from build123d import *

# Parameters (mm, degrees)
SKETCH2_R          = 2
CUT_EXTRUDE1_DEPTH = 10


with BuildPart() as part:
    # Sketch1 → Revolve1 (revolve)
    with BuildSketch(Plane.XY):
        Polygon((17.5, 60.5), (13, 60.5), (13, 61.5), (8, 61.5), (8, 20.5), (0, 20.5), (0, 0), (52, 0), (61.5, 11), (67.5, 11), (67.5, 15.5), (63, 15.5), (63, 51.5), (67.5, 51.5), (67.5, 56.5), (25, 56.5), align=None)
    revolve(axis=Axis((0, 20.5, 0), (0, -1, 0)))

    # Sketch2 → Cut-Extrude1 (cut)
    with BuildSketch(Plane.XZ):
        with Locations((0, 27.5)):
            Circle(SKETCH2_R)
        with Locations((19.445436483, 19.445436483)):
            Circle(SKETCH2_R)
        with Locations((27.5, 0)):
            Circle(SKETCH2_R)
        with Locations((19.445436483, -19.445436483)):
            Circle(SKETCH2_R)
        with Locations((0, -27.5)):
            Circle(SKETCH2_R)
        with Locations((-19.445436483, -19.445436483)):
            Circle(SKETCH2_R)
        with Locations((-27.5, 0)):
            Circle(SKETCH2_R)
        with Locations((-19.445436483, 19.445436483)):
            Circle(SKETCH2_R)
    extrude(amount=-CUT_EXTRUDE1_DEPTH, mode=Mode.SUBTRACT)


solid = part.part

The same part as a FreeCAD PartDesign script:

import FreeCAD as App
import Part
import Sketcher
Q = App.Units.Quantity


def add_polygon(sketch, points):
    """Adds a closed chain of lines whose ends are joined by coincident constraints."""
    first, n = sketch.GeometryCount, len(points)
    for a, b in zip(points, points[1:] + points[:1]):
        sketch.addGeometry(Part.LineSegment(App.Vector(*a, 0), App.Vector(*b, 0)), False)
    for i in range(n):
        sketch.addConstraint(Sketcher.Constraint("Coincident", first + i, 2, first + (i + 1) % n, 1))

doc = App.newDocument("Part")
params = doc.addObject("Spreadsheet::Sheet", "Params")
for row, (alias, value) in enumerate([
    ("sketch1_width", "5 mm"),
    ("sketch1_width2", "8 mm"),
    ("sketch1_width3", "52 mm"),
    ("sketch1_width4", "6 mm"),
    ("sketch1_height", "1 mm"),
    ("revolution_angle", "360 deg"),
    ("sketch2_diameter", "4 mm"),
    ("pocket1_length", "10 mm"),
], start=1):
    params.set(f"A{row}", alias)
    params.set(f"B{row}", "=" + value)
    params.setAlias(f"B{row}", alias)

body = doc.addObject("PartDesign::Body", "Body")

# Sketch on XY plane
sketch1 = doc.addObject("Sketcher::SketchObject", "Sketch")
body.addObject(sketch1)
sketch1.AttachmentSupport = (doc.XY_Plane, [""])
sketch1.MapMode = "FlatFace"
add_polygon(sketch1, [(17.5, 60.5), (13, 60.5), (13, 61.5), (8, 61.5), (8, 20.5), (0, 20.5), (0, 0), (52, 0), (61.5, 11), (67.5, 11), (67.5, 15.5), (63, 15.5), (63, 51.5), (67.5, 51.5), (67.5, 56.5), (25, 56.5)])  # lines 0-15
sketch1.addConstraint([
    Sketcher.Constraint("Horizontal", 0),
    Sketcher.Constraint("Vertical", 1),
    Sketcher.Constraint("Horizontal", 2),
    Sketcher.Constraint("Vertical", 3),
    Sketcher.Constraint("Horizontal", 4),
    Sketcher.Constraint("Vertical", 5),
    Sketcher.Constraint("Horizontal", 6),
    Sketcher.Constraint("Horizontal", 8),
    Sketcher.Constraint("Vertical", 9),
    Sketcher.Constraint("Horizontal", 10),
    Sketcher.Constraint("Vertical", 11),
    Sketcher.Constraint("Horizontal", 12),
    Sketcher.Constraint("Vertical", 13),
    Sketcher.Constraint("Horizontal", 14),
    Sketcher.Constraint("Coincident", 5, 2, -1, 1),
    Sketcher.Constraint("Vertical", 9, 2, 12, 2),
    Sketcher.Constraint("Equal", 0, 10),
    Sketcher.Constraint("Equal", 12, 9),
    Sketcher.Constraint("Equal", 2, 13),
    Sketcher.Constraint("DistanceX", 2, 2, 2, 1, Q("5 mm")),
    Sketcher.Constraint("DistanceX", 4, 2, 4, 1, Q("8 mm")),
    Sketcher.Constraint("DistanceX", 6, 1, 6, 2, Q("52 mm")),
    Sketcher.Constraint("DistanceX", 8, 1, 8, 2, Q("6 mm")),
    Sketcher.Constraint("DistanceY", 1, 1, 1, 2, Q("1 mm")),
    Sketcher.Constraint("DistanceY", 3, 2, 3, 1, Q("41 mm")),
    Sketcher.Constraint("DistanceY", 11, 1, 11, 2, Q("36 mm")),
    Sketcher.Constraint("DistanceX", 0, 2, 0, 1, Q("4.5 mm")),
    Sketcher.Constraint("DistanceX", 14, 2, 14, 1, Q("42.5 mm")),
    Sketcher.Constraint("DistanceY", 5, 2, 5, 1, Q("20.5 mm")),
    Sketcher.Constraint("DistanceY", -1, 1, 7, 2, Q("11 mm")),
    Sketcher.Constraint("DistanceX", -1, 1, 10, 2, Q("63 mm")),
])
sketch1.setExpression("Constraints[35]", "Params.sketch1_width")
sketch1.setExpression("Constraints[36]", "Params.sketch1_width2")
sketch1.setExpression("Constraints[37]", "Params.sketch1_width3")
sketch1.setExpression("Constraints[38]", "Params.sketch1_width4")
sketch1.setExpression("Constraints[39]", "Params.sketch1_height")
revolution = doc.addObject("PartDesign::Revolution", "Revolution")
body.addObject(revolution)
revolution.Profile = sketch1
revolution.ReferenceAxis = (sketch1, ["V_Axis"])
revolution.setExpression("Angle", "Params.revolution_angle")

# Sketch on XZ plane
sketch2 = doc.addObject("Sketcher::SketchObject", "Sketch001")
body.addObject(sketch2)
sketch2.AttachmentSupport = (doc.XZ_Plane, [""])
sketch2.MapMode = "FlatFace"
sketch2.addGeometry([
    Part.Circle(App.Vector(0, 27.5, 0), App.Vector(0, 0, 1), 2),  # 0
    Part.Circle(App.Vector(19.4, 19.4, 0), App.Vector(0, 0, 1), 2),  # 1
    Part.Circle(App.Vector(27.5, 0, 0), App.Vector(0, 0, 1), 2),  # 2
    Part.Circle(App.Vector(19.4, -19.4, 0), App.Vector(0, 0, 1), 2),  # 3
    Part.Circle(App.Vector(0, -27.5, 0), App.Vector(0, 0, 1), 2),  # 4
    Part.Circle(App.Vector(-19.4, -19.4, 0), App.Vector(0, 0, 1), 2),  # 5
    Part.Circle(App.Vector(-27.5, 0, 0), App.Vector(0, 0, 1), 2),  # 6
    Part.Circle(App.Vector(-19.4, 19.4, 0), App.Vector(0, 0, 1), 2),  # 7
], False)
sketch2.addConstraint([
    Sketcher.Constraint("Equal", 0, 1),
    Sketcher.Constraint("Equal", 1, 2),
    Sketcher.Constraint("Equal", 2, 3),
    Sketcher.Constraint("Equal", 3, 4),
    Sketcher.Constraint("Equal", 4, 5),
    Sketcher.Constraint("Equal", 5, 6),
    Sketcher.Constraint("Equal", 6, 7),
    Sketcher.Constraint("Symmetric", 0, 3, 4, 3, -1, 1),
    Sketcher.Constraint("Symmetric", 1, 3, 5, 3, -1, 1),
    Sketcher.Constraint("Symmetric", 2, 3, 6, 3, -1, 1),
    Sketcher.Constraint("Symmetric", 3, 3, 7, 3, -1, 1),
    Sketcher.Constraint("Symmetric", 3, 3, 5, 3, -2),
    Sketcher.Constraint("PointOnObject", 0, 3, -2),
    Sketcher.Constraint("PointOnObject", 2, 3, -1),
    Sketcher.Constraint("Diameter", 0, Q("4 mm")),
    Sketcher.Constraint("DistanceY", 4, 3, 0, 3, Q("55 mm")),
    Sketcher.Constraint("DistanceX", -1, 1, 2, 3, Q("27.5 mm")),
    Sketcher.Constraint("DistanceX", -1, 1, 1, 3, Q("19.445436 mm")),
    Sketcher.Constraint("DistanceY", -1, 1, 1, 3, Q("19.445436 mm")),
])
sketch2.setExpression("Constraints[14]", "Params.sketch2_diameter")
pocket1 = doc.addObject("PartDesign::Pocket", "Pocket")
body.addObject(pocket1)
pocket1.Profile = sketch2
pocket1.setExpression("Length", "Params.pocket1_length")

doc.recompute()
